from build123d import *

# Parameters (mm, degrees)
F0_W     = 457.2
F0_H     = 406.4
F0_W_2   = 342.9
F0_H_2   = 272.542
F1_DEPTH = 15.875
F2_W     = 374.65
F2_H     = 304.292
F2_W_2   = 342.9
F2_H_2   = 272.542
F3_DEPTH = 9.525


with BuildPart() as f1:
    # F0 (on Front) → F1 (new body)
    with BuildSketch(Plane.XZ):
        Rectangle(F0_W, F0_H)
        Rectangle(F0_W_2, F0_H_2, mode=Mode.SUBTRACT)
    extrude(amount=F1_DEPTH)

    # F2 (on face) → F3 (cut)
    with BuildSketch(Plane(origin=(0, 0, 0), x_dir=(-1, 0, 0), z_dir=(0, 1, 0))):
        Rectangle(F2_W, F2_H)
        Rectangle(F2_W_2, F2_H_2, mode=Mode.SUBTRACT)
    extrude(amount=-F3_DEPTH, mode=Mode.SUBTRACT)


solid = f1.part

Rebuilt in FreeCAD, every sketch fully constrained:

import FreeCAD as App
import Part
import Sketcher

V = App.Vector
Q = App.Units.Quantity

doc = App.newDocument("Part")
body = doc.addObject("PartDesign::Body", "Body")

# Sketch on XZ plane
sketch1 = body.newObject("Sketcher::SketchObject", "Sketch")
sketch1.AttachmentSupport = (doc.getObject("XZ_Plane"), [""])
sketch1.MapMode = "FlatFace"
sketch1.addGeometry(Part.LineSegment(V(-229, 203, 0), V(-229, -203, 0)), False)
sketch1.addGeometry(Part.LineSegment(V(-229, -203, 0), V(229, -203, 0)), False)
sketch1.addGeometry(Part.LineSegment(V(229, -203, 0), V(229, 203, 0)), False)
sketch1.addGeometry(Part.LineSegment(V(229, 203, 0), V(-229, 203, 0)), False)
sketch1.addGeometry(Part.LineSegment(V(171, -136, 0), V(-171, -136, 0)), False)
sketch1.addGeometry(Part.LineSegment(V(-171, -136, 0), V(-171, 136, 0)), False)
sketch1.addGeometry(Part.LineSegment(V(-171, 136, 0), V(171, 136, 0)), False)
sketch1.addGeometry(Part.LineSegment(V(171, 136, 0), V(171, -136, 0)), False)
sketch1.addConstraint(Sketcher.Constraint("Coincident", 0, 2, 1, 1))
sketch1.addConstraint(Sketcher.Constraint("Coincident", 1, 2, 2, 1))
sketch1.addConstraint(Sketcher.Constraint("Coincident", 2, 2, 3, 1))
sketch1.addConstraint(Sketcher.Constraint("Coincident", 3, 2, 0, 1))
sketch1.addConstraint(Sketcher.Constraint("Coincident", 4, 2, 5, 1))
sketch1.addConstraint(Sketcher.Constraint("Coincident", 5, 2, 6, 1))
sketch1.addConstraint(Sketcher.Constraint("Coincident", 6, 2, 7, 1))
sketch1.addConstraint(Sketcher.Constraint("Coincident", 7, 2, 4, 1))
sketch1.addConstraint(Sketcher.Constraint("Vertical", 0))
sketch1.addConstraint(Sketcher.Constraint("Horizontal", 1))
sketch1.addConstraint(Sketcher.Constraint("Vertical", 2))
sketch1.addConstraint(Sketcher.Constraint("Horizontal", 3))
sketch1.addConstraint(Sketcher.Constraint("Horizontal", 4))
sketch1.addConstraint(Sketcher.Constraint("Vertical", 5))
sketch1.addConstraint(Sketcher.Constraint("Horizontal", 6))
sketch1.addConstraint(Sketcher.Constraint("Vertical", 7))
sketch1.addConstraint(Sketcher.Constraint("Symmetric", 0, 2, 2, 2, -1, 1))
sketch1.addConstraint(Sketcher.Constraint("Symmetric", 4, 2, 6, 2, -1, 1))
sketch1.addConstraint(Sketcher.Constraint("DistanceX", 1, 1, 1, 2, Q("18 in")))
sketch1.addConstraint(Sketcher.Constraint("DistanceY", 0, 2, 0, 1, Q("16 in")))
sketch1.addConstraint(Sketcher.Constraint("DistanceX", 4, 2, 4, 1, Q("13.5 in")))
sketch1.addConstraint(Sketcher.Constraint("DistanceY", 5, 1, 5, 2, Q("10.73 in")))
pad1 = body.newObject("PartDesign::Pad", "Pad")
pad1.Profile = sketch1
pad1.Length = Q("0.625 in")

# Sketch on XZ plane
sketch2 = body.newObject("Sketcher::SketchObject", "Sketch001")
sketch2.AttachmentSupport = (doc.getObject("XZ_Plane"), [""])
sketch2.MapMode = "FlatFace"
sketch2.addGeometry(Part.LineSegment(V(187, 152, 0), V(187, -152, 0)), False)
sketch2.addGeometry(Part.LineSegment(V(187, -152, 0), V(-187, -152, 0)), False)
sketch2.addGeometry(Part.LineSegment(V(-187, -152, 0), V(-187, 152, 0)), False)
sketch2.addGeometry(Part.LineSegment(V(-187, 152, 0), V(187, 152, 0)), False)
sketch2.addGeometry(Part.LineSegment(V(-171, -136, 0), V(171, -136, 0)), False)
sketch2.addGeometry(Part.LineSegment(V(171, -136, 0), V(171, 136, 0)), False)
sketch2.addGeometry(Part.LineSegment(V(171, 136, 0), V(-171, 136, 0)), False)
sketch2.addGeometry(Part.LineSegment(V(-171, 136, 0), V(-171, -136, 0)), False)
sketch2.addConstraint(Sketcher.Constraint("Coincident", 0, 2, 1, 1))
sketch2.addConstraint(Sketcher.Constraint("Coincident", 1, 2, 2, 1))
sketch2.addConstraint(Sketcher.Constraint("Coincident", 2, 2, 3, 1))
sketch2.addConstraint(Sketcher.Constraint("Coincident", 3, 2, 0, 1))
sketch2.addConstraint(Sketcher.Constraint("Coincident", 4, 2, 5, 1))
sketch2.addConstraint(Sketcher.Constraint("Coincident", 5, 2, 6, 1))
sketch2.addConstraint(Sketcher.Constraint("Coincident", 6, 2, 7, 1))
sketch2.addConstraint(Sketcher.Constraint("Coincident", 7, 2, 4, 1))
sketch2.addConstraint(Sketcher.Constraint("Vertical", 0))
sketch2.addConstraint(Sketcher.Constraint("Horizontal", 1))
sketch2.addConstraint(Sketcher.Constraint("Vertical", 2))
sketch2.addConstraint(Sketcher.Constraint("Horizontal", 3))
sketch2.addConstraint(Sketcher.Constraint("Horizontal", 4))
sketch2.addConstraint(Sketcher.Constraint("Vertical", 5))
sketch2.addConstraint(Sketcher.Constraint("Horizontal", 6))
sketch2.addConstraint(Sketcher.Constraint("Vertical", 7))
sketch2.addConstraint(Sketcher.Constraint("Symmetric", 0, 2, 2, 2, -1, 1))
sketch2.addConstraint(Sketcher.Constraint("Symmetric", 4, 2, 6, 2, -1, 1))
sketch2.addConstraint(Sketcher.Constraint("DistanceX", 4, 1, 4, 2, Q("13.5 in")))
sketch2.addConstraint(Sketcher.Constraint("DistanceX", 1, 2, 1, 1, Q("14.75 in")))
sketch2.addConstraint(Sketcher.Constraint("DistanceY", 0, 2, 0, 1, Q("11.98 in")))
sketch2.addConstraint(Sketcher.Constraint("DistanceY", 5, 1, 5, 2, Q("10.73 in")))
pocket1 = body.newObject("PartDesign::Pocket", "Pocket")
pocket1.Profile = sketch2
pocket1.Length = Q("0.375 in")
pocket1.Reversed = True

doc.recompute()
